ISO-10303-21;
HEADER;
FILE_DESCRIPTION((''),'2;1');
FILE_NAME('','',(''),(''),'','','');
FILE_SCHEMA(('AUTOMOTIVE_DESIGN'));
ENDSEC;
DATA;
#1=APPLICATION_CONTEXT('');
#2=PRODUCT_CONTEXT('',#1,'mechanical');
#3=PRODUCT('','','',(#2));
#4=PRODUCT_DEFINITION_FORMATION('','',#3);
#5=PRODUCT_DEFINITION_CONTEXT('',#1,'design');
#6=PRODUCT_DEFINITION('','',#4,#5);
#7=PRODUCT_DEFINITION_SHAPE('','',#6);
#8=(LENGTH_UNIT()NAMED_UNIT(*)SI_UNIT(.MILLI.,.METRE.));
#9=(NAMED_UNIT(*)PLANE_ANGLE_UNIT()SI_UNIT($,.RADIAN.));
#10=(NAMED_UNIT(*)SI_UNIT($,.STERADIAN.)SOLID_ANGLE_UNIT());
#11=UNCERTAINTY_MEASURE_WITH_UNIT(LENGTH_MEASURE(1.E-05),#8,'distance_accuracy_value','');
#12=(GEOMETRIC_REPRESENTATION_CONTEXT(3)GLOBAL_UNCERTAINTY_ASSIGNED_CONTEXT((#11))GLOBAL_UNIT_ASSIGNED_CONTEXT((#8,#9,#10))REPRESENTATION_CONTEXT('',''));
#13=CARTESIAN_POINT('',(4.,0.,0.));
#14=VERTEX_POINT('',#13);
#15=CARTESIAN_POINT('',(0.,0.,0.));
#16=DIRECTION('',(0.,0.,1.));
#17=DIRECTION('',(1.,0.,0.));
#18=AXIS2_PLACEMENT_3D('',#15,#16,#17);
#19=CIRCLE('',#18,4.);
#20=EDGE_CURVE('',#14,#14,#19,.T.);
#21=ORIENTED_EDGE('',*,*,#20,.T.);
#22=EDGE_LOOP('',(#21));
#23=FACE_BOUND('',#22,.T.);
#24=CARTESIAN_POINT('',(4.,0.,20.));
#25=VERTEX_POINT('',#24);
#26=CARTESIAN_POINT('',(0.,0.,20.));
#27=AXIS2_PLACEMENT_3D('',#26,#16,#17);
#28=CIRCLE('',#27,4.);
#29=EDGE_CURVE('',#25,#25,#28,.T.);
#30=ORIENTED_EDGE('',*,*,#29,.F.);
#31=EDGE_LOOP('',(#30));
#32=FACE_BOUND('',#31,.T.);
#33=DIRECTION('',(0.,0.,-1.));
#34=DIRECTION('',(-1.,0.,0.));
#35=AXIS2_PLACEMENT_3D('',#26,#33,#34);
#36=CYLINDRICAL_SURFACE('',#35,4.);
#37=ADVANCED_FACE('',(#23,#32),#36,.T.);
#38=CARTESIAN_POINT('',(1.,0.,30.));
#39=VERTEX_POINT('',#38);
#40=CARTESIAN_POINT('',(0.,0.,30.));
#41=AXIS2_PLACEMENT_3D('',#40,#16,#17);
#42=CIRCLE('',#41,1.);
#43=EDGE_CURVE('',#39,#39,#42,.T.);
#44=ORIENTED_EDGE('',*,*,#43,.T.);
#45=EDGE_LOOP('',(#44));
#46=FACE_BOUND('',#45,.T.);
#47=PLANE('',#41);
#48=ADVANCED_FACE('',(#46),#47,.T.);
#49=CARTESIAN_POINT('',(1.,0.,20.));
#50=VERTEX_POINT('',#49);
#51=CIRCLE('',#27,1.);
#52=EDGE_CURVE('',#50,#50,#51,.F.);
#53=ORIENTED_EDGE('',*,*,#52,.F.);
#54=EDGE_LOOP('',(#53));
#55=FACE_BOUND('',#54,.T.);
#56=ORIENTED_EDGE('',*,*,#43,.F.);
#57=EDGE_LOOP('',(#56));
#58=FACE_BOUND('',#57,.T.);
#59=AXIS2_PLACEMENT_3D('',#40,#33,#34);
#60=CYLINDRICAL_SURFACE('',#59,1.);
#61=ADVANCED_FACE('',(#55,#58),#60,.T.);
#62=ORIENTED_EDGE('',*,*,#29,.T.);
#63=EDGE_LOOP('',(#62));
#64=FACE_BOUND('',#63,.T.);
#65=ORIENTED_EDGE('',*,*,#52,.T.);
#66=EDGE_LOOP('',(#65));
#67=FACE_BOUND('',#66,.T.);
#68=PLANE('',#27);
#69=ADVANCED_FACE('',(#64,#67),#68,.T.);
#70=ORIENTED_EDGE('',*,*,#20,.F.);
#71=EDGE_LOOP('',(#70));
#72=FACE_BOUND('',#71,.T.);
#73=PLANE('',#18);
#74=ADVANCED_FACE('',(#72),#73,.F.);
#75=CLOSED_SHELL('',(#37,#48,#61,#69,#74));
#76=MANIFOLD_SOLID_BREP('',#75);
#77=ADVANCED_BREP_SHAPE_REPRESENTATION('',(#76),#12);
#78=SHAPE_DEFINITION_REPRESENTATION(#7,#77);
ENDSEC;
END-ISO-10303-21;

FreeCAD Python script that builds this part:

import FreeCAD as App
import Part
import Sketcher

V = App.Vector
Q = App.Units.Quantity

doc = App.newDocument("Part")
params = doc.addObject("Spreadsheet::Sheet", "Params")
for row, (alias, value) in enumerate([
    ("sketch1_diameter", "8 mm"),
    ("pad1_length", "20 mm"),
    ("sketch2_diameter", "2 mm"),
    ("pad2_length", "30 mm"),
], start=1):
    params.set(f"A{row}", alias)
    params.set(f"B{row}", "=" + value)
    params.setAlias(f"B{row}", alias)

body = doc.addObject("PartDesign::Body", "Body")

# Sketch on XY plane
sketch1 = body.newObject("Sketcher::SketchObject", "Sketch")
sketch1.AttachmentSupport = (doc.getObject("XY_Plane"), [""])
sketch1.MapMode = "FlatFace"
sketch1.addGeometry(Part.Circle(V(0, 0, 0), V(0, 0, 1), 4), False)
sketch1.addConstraint(Sketcher.Constraint("Coincident", 0, 3, -1, 1))
sketch1.addConstraint(Sketcher.Constraint("Diameter", 0, Q("8 mm")))
sketch1.setExpression("Constraints[1]", "Params.sketch1_diameter")
pad1 = body.newObject("PartDesign::Pad", "Pad")
pad1.Profile = sketch1
pad1.setExpression("Length", "Params.pad1_length")

# Sketch on XY plane
sketch2 = body.newObject("Sketcher::SketchObject", "Sketch001")
sketch2.AttachmentSupport = (doc.getObject("XY_Plane"), [""])
sketch2.MapMode = "FlatFace"
sketch2.addGeometry(Part.Circle(V(0, 0, 0), V(0, 0, 1), 1), False)
sketch2.addConstraint(Sketcher.Constraint("Coincident", 0, 3, -1, 1))
sketch2.addConstraint(Sketcher.Constraint("Diameter", 0, Q("2 mm")))
sketch2.setExpression("Constraints[1]", "Params.sketch2_diameter")
pad2 = body.newObject("PartDesign::Pad", "Pad001")
pad2.Profile = sketch2
pad2.setExpression("Length", "Params.pad2_length")

doc.recompute()
